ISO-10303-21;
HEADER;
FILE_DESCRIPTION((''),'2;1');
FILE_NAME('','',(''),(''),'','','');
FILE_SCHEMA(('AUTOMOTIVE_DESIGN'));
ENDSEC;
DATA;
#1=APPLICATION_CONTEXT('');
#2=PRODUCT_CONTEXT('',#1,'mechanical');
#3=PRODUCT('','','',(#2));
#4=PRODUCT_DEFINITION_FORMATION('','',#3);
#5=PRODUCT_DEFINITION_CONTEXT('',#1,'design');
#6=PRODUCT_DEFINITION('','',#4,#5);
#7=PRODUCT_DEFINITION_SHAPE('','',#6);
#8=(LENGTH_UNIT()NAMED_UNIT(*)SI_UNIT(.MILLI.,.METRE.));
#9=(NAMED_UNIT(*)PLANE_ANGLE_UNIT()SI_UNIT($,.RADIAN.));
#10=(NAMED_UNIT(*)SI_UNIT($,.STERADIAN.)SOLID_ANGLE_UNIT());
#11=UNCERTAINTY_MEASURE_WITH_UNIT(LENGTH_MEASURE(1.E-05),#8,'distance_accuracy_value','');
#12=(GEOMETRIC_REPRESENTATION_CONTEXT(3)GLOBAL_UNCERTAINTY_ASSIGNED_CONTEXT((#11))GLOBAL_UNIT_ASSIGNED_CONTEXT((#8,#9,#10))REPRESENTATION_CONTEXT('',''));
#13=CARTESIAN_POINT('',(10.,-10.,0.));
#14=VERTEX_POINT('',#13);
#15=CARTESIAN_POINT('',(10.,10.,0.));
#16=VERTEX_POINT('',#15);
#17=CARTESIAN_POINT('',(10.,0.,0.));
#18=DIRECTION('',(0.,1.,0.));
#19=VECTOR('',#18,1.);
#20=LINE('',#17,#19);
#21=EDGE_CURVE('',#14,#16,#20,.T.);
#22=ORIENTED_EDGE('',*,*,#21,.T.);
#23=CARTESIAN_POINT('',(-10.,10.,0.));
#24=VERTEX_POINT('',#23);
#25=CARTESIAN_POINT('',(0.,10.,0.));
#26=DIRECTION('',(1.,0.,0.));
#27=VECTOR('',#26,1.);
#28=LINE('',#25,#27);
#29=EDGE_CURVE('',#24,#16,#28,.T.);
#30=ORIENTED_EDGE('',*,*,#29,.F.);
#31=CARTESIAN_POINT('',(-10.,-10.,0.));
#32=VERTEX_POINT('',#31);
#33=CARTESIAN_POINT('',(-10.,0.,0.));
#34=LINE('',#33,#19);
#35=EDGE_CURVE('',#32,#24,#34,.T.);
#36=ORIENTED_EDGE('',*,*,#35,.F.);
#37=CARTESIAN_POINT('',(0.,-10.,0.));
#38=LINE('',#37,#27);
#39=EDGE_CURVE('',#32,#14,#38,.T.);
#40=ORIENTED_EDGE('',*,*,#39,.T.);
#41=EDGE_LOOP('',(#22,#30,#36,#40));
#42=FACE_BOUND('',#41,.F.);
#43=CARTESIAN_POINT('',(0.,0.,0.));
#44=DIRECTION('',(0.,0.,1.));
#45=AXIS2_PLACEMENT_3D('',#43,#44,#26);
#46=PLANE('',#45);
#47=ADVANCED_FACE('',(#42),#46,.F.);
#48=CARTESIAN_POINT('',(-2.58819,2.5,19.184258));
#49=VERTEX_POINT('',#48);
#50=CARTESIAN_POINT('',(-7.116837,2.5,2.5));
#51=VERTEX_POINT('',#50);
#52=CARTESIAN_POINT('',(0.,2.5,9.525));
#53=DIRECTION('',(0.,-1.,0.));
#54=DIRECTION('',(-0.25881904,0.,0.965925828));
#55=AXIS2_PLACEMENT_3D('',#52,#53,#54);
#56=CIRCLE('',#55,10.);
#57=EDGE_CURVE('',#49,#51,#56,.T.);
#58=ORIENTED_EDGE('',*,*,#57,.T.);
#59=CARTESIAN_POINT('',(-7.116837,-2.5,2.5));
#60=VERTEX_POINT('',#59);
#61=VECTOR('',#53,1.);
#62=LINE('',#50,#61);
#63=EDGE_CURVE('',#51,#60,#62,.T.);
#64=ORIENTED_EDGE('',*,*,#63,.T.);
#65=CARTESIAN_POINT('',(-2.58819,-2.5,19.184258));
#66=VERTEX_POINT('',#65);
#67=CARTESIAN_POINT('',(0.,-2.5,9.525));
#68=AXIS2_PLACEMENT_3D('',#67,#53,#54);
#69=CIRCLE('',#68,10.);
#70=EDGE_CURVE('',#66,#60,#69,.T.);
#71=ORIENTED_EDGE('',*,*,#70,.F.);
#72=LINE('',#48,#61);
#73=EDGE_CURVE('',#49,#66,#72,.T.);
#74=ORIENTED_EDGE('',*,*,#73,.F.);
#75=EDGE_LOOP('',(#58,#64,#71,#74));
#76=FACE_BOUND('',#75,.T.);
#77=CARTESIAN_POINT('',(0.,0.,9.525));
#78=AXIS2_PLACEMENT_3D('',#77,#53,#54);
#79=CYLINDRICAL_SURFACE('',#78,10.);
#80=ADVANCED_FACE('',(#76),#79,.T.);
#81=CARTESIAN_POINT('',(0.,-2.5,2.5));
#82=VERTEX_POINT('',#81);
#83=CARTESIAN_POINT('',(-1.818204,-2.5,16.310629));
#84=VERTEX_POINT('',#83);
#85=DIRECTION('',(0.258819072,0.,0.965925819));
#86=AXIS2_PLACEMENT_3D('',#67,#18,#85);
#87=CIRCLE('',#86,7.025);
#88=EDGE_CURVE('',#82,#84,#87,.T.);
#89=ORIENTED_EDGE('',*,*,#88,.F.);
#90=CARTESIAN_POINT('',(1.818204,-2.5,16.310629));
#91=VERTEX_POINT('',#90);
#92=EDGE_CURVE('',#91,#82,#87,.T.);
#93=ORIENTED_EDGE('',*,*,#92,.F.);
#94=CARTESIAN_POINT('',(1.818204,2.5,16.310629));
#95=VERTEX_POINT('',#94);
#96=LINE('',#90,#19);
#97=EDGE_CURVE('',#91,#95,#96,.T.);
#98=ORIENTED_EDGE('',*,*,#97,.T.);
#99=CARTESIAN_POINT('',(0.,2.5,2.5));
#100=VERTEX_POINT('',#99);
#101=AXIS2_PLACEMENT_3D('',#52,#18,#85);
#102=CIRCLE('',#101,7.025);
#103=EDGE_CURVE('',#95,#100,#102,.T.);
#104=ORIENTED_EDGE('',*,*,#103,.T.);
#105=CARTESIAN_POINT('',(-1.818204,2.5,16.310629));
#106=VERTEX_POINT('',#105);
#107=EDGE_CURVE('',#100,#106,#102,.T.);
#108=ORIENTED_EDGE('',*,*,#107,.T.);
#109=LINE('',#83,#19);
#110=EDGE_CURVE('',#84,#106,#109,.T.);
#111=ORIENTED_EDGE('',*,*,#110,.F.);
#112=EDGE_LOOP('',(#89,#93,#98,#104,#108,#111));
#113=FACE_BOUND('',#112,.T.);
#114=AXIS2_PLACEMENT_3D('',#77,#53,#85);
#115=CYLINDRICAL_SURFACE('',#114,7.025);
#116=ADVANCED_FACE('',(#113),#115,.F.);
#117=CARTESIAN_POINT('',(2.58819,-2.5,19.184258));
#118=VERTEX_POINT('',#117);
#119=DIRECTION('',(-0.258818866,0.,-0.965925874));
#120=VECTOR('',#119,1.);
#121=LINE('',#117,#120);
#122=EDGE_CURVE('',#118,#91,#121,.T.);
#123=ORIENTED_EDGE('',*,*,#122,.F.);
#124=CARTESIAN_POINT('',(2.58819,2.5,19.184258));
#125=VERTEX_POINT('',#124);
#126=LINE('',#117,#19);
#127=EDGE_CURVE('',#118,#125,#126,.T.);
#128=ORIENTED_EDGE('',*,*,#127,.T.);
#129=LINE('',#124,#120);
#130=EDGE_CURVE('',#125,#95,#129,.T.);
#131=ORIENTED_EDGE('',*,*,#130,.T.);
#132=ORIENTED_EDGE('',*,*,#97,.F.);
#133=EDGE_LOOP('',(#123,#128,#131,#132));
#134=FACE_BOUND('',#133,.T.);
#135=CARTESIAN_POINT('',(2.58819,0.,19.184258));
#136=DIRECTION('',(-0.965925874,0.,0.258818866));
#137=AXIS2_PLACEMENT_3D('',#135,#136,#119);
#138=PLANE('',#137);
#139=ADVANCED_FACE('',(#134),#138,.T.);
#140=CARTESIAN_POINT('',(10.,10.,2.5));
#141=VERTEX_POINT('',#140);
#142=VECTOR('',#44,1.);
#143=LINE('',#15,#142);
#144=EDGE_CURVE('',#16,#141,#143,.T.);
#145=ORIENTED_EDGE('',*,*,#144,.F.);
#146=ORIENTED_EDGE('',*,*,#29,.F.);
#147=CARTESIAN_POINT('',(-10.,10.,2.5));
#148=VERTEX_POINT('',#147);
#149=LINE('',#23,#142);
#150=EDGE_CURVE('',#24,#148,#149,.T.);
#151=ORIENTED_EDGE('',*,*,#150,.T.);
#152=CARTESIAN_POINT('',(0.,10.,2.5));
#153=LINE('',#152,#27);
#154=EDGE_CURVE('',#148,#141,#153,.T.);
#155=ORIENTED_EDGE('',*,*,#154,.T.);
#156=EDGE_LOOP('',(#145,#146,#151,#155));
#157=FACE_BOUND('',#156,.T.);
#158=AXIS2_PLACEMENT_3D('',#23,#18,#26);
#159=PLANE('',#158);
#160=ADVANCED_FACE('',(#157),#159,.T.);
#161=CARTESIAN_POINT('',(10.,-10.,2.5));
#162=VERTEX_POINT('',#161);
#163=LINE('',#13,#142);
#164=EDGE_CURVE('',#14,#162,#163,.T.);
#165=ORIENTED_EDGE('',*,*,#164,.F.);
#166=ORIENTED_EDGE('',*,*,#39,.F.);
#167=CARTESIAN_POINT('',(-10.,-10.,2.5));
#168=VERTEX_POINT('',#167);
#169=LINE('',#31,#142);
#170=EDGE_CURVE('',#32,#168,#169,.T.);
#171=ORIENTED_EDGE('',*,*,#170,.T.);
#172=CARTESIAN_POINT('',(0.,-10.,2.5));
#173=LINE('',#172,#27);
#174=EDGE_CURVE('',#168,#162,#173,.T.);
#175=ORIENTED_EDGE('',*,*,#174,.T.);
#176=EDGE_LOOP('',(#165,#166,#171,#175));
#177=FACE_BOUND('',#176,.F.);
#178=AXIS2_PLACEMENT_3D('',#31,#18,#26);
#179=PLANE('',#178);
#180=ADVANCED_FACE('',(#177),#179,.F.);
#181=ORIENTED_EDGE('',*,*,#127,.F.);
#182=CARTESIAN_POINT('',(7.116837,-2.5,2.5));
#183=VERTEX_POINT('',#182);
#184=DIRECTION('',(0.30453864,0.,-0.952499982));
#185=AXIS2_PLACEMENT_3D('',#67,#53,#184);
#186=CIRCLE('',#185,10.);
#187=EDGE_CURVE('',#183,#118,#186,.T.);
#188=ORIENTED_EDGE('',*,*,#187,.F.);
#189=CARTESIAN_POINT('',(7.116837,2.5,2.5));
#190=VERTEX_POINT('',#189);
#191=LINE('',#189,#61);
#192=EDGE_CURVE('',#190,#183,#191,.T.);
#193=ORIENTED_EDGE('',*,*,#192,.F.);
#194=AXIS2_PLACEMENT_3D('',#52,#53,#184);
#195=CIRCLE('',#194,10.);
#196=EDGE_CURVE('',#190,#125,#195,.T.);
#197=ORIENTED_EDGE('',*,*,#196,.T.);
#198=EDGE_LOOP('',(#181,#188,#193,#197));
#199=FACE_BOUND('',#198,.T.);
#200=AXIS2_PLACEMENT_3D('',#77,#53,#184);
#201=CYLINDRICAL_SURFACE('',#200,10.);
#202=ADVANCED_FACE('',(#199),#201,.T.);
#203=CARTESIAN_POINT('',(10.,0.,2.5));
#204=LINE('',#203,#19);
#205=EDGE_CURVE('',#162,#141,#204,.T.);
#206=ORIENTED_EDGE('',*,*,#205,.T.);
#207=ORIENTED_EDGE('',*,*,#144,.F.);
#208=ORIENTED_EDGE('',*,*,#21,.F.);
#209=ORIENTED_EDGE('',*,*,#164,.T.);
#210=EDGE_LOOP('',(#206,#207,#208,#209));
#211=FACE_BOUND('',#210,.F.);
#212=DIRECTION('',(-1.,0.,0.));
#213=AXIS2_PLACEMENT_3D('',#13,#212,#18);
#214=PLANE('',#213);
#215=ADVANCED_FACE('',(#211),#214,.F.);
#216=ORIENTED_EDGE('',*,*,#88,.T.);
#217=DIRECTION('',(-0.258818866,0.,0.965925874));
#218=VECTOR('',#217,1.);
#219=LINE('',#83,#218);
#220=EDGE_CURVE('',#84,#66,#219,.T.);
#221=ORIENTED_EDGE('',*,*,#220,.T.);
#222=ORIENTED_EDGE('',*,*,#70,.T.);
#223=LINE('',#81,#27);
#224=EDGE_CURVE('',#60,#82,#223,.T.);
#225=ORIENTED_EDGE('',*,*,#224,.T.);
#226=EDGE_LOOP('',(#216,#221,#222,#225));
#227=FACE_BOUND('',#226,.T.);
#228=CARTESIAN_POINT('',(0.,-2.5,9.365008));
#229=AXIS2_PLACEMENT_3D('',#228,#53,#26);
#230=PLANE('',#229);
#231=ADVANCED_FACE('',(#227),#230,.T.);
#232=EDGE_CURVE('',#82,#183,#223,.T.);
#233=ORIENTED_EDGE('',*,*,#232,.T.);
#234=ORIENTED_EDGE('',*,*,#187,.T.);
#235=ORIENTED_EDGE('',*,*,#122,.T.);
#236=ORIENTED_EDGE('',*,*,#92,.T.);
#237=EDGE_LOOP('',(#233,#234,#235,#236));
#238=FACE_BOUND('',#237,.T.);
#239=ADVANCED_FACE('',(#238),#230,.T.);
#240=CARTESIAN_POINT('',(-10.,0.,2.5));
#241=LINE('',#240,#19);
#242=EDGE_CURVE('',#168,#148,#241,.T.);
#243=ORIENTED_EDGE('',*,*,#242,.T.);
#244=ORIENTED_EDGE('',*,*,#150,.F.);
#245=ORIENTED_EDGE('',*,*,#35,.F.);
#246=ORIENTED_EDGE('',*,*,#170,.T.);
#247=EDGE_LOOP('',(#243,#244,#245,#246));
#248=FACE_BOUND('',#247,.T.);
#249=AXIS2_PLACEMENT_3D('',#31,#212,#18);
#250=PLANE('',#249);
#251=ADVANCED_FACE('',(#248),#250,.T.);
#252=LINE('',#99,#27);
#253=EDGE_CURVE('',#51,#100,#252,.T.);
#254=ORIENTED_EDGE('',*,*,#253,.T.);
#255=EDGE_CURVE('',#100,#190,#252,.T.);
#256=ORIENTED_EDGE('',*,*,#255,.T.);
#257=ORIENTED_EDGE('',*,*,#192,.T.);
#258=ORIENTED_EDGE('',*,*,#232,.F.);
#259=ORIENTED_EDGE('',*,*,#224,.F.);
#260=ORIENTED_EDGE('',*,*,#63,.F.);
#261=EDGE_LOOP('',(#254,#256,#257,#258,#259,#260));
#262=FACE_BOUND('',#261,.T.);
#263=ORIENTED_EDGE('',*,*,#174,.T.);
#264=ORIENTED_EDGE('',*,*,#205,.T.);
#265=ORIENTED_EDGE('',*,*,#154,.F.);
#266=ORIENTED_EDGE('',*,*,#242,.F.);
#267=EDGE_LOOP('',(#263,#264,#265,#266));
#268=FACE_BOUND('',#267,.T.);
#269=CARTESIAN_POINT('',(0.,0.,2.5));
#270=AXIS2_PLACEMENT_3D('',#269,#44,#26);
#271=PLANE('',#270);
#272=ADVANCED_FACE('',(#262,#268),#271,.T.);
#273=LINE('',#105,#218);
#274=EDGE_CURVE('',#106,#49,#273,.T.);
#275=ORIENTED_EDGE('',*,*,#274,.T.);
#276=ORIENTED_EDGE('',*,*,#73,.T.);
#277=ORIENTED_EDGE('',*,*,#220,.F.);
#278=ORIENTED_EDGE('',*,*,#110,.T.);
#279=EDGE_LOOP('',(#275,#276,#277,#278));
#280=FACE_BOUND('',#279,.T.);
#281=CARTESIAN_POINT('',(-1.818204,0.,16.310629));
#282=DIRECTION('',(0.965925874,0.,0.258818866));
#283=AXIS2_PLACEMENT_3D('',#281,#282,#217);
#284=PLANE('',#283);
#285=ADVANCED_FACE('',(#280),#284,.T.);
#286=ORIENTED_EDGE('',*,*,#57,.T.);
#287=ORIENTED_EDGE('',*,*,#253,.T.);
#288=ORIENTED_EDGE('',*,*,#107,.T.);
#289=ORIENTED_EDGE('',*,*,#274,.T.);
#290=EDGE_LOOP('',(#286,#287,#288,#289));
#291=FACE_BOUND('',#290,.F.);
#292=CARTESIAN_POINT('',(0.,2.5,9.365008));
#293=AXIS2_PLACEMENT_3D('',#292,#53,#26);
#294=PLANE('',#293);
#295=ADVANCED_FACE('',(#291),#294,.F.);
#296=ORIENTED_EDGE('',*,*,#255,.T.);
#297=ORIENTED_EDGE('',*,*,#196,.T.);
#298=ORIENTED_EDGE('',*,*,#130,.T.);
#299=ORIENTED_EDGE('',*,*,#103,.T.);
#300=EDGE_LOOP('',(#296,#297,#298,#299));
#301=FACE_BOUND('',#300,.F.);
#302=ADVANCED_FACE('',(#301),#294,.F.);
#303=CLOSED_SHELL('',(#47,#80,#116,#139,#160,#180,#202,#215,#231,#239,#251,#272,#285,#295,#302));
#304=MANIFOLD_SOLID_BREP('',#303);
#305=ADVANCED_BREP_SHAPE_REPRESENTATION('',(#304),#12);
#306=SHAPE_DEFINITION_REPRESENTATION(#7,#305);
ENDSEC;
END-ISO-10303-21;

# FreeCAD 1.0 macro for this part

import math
import FreeCAD as App
import Part
import Sketcher
Q = App.Units.Quantity


def add_polygon(sketch, points):
    """Adds a closed chain of lines whose ends are joined by coincident constraints."""
    first, n = sketch.GeometryCount, len(points)
    for a, b in zip(points, points[1:] + points[:1]):
        sketch.addGeometry(Part.LineSegment(App.Vector(*a, 0), App.Vector(*b, 0)), False)
    for i in range(n):
        sketch.addConstraint(Sketcher.Constraint("Coincident", first + i, 2, first + (i + 1) % n, 1))

doc = App.newDocument("Part")
body = doc.addObject("PartDesign::Body", "Body")

sketch1 = body.newObject("Sketcher::SketchObject", "Sketch")
sketch1.AttachmentSupport = (doc.getObject("XY_Plane"), [""])
sketch1.MapMode = "FlatFace"
add_polygon(sketch1, [(-10, 10), (-10, -10), (10, -10), (10, 10)])
sketch1.addConstraint([
    Sketcher.Constraint("Vertical", 0),
    Sketcher.Constraint("Horizontal", 1),
    Sketcher.Constraint("Vertical", 2),
    Sketcher.Constraint("Horizontal", 3),
    Sketcher.Constraint("Symmetric", 0, 2, 2, 2, -1, 1),
    Sketcher.Constraint("Equal", 3, 0),
    Sketcher.Constraint("DistanceX", 1, 1, 1, 2, 20.0),
])
pad1 = body.newObject("PartDesign::Pad", "Pad")
pad1.Profile = sketch1
pad1.Length = 2.5

sketch2 = body.newObject("Sketcher::SketchObject", "Sketch001")
sketch2.AttachmentSupport = (doc.getObject("XZ_Plane"), [""])
sketch2.MapMode = "FlatFace"
sketch2.addGeometry([
    Part.LineSegment(App.Vector(-1.818204, 16.310629, 0), App.Vector(-2.58819, 19.184258, 0)),
    Part.ArcOfCircle(Part.Circle(App.Vector(0, 9.525, 0), App.Vector(0, 0, 1), 10), math.radians(105), math.radians(252.26959)),
    Part.LineSegment(App.Vector(-3.045386, 0, 0), App.Vector(3.045386, 0, 0)),
    Part.ArcOfCircle(Part.Circle(App.Vector(0, 9.525, 0), App.Vector(0, 0, 1), 10), math.radians(-72.26959), math.radians(75)),
    Part.LineSegment(App.Vector(2.58819, 19.184258, 0), App.Vector(1.818204, 16.310629, 0)),
    Part.ArcOfCircle(Part.Circle(App.Vector(0, 9.525, 0), App.Vector(0, 0, 1), 7.025), math.radians(105.000002), math.radians(434.999998)),
], False)
sketch2.addConstraint([
    Sketcher.Constraint("Coincident", 0, 2, 1, 1),
    Sketcher.Constraint("Coincident", 1, 2, 2, 1),
    Sketcher.Constraint("Coincident", 2, 2, 3, 1),
    Sketcher.Constraint("Coincident", 3, 2, 4, 1),
    Sketcher.Constraint("Coincident", 4, 2, 5, 2),
    Sketcher.Constraint("Coincident", 5, 1, 0, 1),
    Sketcher.Constraint("Horizontal", 2),
    Sketcher.Constraint("Coincident", 3, 3, 1, 3),
    Sketcher.Constraint("Coincident", 5, 3, 1, 3),
    Sketcher.Constraint("Equal", 1, 3),
    Sketcher.Constraint("Symmetric", 1, 2, 2, 2, -1, 1),
    Sketcher.Constraint("Horizontal", 0, 2, 3, 2),
    Sketcher.Constraint("Horizontal", 4, 2, 5, 1),
    Sketcher.Constraint("Radius", 1, 10.0),
    Sketcher.Constraint("Angle", 0, Q("104.999989 deg")),
    Sketcher.Constraint("Radius", 5, 7.025),
    Sketcher.Constraint("DistanceY", -1, 1, 1, 3, 9.525),
    Sketcher.Constraint("DistanceX", 0, 2, -1, 1, 2.58819),
])
pad2 = body.newObject("PartDesign::Pad", "Pad001")
pad2.Profile = sketch2
pad2.Length = 3
pad2.Midplane = True

sketch3 = body.newObject("Sketcher::SketchObject", "Sketch002")
sketch3.AttachmentSupport = (doc.getObject("XZ_Plane"), [""])
sketch3.MapMode = "FlatFace"
sketch3.addGeometry([
    Part.LineSegment(App.Vector(-1.818204, 16.310629, 0), App.Vector(-2.58819, 19.184258, 0)),
    Part.ArcOfCircle(Part.Circle(App.Vector(0, 9.525, 0), App.Vector(0, 0, 1), 10), math.radians(105), math.radians(252.26959)),
    Part.LineSegment(App.Vector(-3.045386, 0, 0), App.Vector(3.045386, 0, 0)),
    Part.ArcOfCircle(Part.Circle(App.Vector(0, 9.525, 0), App.Vector(0, 0, 1), 10), math.radians(-72.26959), math.radians(75)),
    Part.LineSegment(App.Vector(2.58819, 19.184258, 0), App.Vector(1.818204, 16.310629, 0)),
    Part.ArcOfCircle(Part.Circle(App.Vector(0, 9.525, 0), App.Vector(0, 0, 1), 7.025), math.radians(105.000002), math.radians(434.999998)),
], False)
sketch3.addConstraint([
    Sketcher.Constraint("Coincident", 0, 2, 1, 1),
    Sketcher.Constraint("Coincident", 1, 2, 2, 1),
    Sketcher.Constraint("Coincident", 2, 2, 3, 1),
    Sketcher.Constraint("Coincident", 3, 2, 4, 1),
    Sketcher.Constraint("Coincident", 4, 2, 5, 2),
    Sketcher.Constraint("Coincident", 5, 1, 0, 1),
    Sketcher.Constraint("Horizontal", 2),
    Sketcher.Constraint("Coincident", 3, 3, 1, 3),
    Sketcher.Constraint("Coincident", 5, 3, 1, 3),
    Sketcher.Constraint("Equal", 1, 3),
    Sketcher.Constraint("Symmetric", 1, 2, 2, 2, -1, 1),
    Sketcher.Constraint("Horizontal", 0, 2, 3, 2),
    Sketcher.Constraint("Horizontal", 4, 2, 5, 1),
    Sketcher.Constraint("Radius", 1, 10.0),
    Sketcher.Constraint("Angle", 0, Q("104.999989 deg")),
    Sketcher.Constraint("Radius", 5, 7.025),
    Sketcher.Constraint("DistanceY", -1, 1, 1, 3, 9.525),
    Sketcher.Constraint("DistanceX", 0, 2, -1, 1, 2.58819),
])
pad3 = body.newObject("PartDesign::Pad", "Pad002")
pad3.Profile = sketch3
pad3.Length = 5
pad3.Midplane = True

sketch4 = body.newObject("Sketcher::SketchObject", "Sketch003")
sketch4.AttachmentSupport = (doc.getObject("XZ_Plane"), [""])
sketch4.MapMode = "FlatFace"
sketch4.addGeometry([
    Part.LineSegment(App.Vector(-1.818204, 16.310629, 0), App.Vector(-2.58819, 19.184258, 0)),
    Part.ArcOfCircle(Part.Circle(App.Vector(0, 9.525, 0), App.Vector(0, 0, 1), 10), math.radians(105), math.radians(252.26959)),
    Part.LineSegment(App.Vector(-3.045386, 0, 0), App.Vector(3.045386, 0, 0)),
    Part.ArcOfCircle(Part.Circle(App.Vector(0, 9.525, 0), App.Vector(0, 0, 1), 10), math.radians(-72.26959), math.radians(75)),
    Part.LineSegment(App.Vector(2.58819, 19.184258, 0), App.Vector(1.818204, 16.310629, 0)),
    Part.ArcOfCircle(Part.Circle(App.Vector(0, 9.525, 0), App.Vector(0, 0, 1), 7.025), math.radians(105.000002), math.radians(434.999998)),
], False)
sketch4.addConstraint([
    Sketcher.Constraint("Coincident", 0, 2, 1, 1),
    Sketcher.Constraint("Coincident", 1, 2, 2, 1),
    Sketcher.Constraint("Coincident", 2, 2, 3, 1),
    Sketcher.Constraint("Coincident", 3, 2, 4, 1),
    Sketcher.Constraint("Coincident", 4, 2, 5, 2),
    Sketcher.Constraint("Coincident", 5, 1, 0, 1),
    Sketcher.Constraint("Horizontal", 2),
    Sketcher.Constraint("Coincident", 3, 3, 1, 3),
    Sketcher.Constraint("Coincident", 5, 3, 1, 3),
    Sketcher.Constraint("Equal", 1, 3),
    Sketcher.Constraint("Symmetric", 1, 2, 2, 2, -1, 1),
    Sketcher.Constraint("Horizontal", 0, 2, 3, 2),
    Sketcher.Constraint("Horizontal", 4, 2, 5, 1),
    Sketcher.Constraint("Radius", 1, 10.0),
    Sketcher.Constraint("Angle", 0, Q("104.999989 deg")),
    Sketcher.Constraint("Radius", 5, 7.025),
    Sketcher.Constraint("DistanceY", -1, 1, 1, 3, 9.525),
    Sketcher.Constraint("DistanceX", 0, 2, -1, 1, 2.58819),
])
pad4 = body.newObject("PartDesign::Pad", "Pad003")
pad4.Profile = sketch4
pad4.Length = 4
pad4.Midplane = True

doc.recompute()
